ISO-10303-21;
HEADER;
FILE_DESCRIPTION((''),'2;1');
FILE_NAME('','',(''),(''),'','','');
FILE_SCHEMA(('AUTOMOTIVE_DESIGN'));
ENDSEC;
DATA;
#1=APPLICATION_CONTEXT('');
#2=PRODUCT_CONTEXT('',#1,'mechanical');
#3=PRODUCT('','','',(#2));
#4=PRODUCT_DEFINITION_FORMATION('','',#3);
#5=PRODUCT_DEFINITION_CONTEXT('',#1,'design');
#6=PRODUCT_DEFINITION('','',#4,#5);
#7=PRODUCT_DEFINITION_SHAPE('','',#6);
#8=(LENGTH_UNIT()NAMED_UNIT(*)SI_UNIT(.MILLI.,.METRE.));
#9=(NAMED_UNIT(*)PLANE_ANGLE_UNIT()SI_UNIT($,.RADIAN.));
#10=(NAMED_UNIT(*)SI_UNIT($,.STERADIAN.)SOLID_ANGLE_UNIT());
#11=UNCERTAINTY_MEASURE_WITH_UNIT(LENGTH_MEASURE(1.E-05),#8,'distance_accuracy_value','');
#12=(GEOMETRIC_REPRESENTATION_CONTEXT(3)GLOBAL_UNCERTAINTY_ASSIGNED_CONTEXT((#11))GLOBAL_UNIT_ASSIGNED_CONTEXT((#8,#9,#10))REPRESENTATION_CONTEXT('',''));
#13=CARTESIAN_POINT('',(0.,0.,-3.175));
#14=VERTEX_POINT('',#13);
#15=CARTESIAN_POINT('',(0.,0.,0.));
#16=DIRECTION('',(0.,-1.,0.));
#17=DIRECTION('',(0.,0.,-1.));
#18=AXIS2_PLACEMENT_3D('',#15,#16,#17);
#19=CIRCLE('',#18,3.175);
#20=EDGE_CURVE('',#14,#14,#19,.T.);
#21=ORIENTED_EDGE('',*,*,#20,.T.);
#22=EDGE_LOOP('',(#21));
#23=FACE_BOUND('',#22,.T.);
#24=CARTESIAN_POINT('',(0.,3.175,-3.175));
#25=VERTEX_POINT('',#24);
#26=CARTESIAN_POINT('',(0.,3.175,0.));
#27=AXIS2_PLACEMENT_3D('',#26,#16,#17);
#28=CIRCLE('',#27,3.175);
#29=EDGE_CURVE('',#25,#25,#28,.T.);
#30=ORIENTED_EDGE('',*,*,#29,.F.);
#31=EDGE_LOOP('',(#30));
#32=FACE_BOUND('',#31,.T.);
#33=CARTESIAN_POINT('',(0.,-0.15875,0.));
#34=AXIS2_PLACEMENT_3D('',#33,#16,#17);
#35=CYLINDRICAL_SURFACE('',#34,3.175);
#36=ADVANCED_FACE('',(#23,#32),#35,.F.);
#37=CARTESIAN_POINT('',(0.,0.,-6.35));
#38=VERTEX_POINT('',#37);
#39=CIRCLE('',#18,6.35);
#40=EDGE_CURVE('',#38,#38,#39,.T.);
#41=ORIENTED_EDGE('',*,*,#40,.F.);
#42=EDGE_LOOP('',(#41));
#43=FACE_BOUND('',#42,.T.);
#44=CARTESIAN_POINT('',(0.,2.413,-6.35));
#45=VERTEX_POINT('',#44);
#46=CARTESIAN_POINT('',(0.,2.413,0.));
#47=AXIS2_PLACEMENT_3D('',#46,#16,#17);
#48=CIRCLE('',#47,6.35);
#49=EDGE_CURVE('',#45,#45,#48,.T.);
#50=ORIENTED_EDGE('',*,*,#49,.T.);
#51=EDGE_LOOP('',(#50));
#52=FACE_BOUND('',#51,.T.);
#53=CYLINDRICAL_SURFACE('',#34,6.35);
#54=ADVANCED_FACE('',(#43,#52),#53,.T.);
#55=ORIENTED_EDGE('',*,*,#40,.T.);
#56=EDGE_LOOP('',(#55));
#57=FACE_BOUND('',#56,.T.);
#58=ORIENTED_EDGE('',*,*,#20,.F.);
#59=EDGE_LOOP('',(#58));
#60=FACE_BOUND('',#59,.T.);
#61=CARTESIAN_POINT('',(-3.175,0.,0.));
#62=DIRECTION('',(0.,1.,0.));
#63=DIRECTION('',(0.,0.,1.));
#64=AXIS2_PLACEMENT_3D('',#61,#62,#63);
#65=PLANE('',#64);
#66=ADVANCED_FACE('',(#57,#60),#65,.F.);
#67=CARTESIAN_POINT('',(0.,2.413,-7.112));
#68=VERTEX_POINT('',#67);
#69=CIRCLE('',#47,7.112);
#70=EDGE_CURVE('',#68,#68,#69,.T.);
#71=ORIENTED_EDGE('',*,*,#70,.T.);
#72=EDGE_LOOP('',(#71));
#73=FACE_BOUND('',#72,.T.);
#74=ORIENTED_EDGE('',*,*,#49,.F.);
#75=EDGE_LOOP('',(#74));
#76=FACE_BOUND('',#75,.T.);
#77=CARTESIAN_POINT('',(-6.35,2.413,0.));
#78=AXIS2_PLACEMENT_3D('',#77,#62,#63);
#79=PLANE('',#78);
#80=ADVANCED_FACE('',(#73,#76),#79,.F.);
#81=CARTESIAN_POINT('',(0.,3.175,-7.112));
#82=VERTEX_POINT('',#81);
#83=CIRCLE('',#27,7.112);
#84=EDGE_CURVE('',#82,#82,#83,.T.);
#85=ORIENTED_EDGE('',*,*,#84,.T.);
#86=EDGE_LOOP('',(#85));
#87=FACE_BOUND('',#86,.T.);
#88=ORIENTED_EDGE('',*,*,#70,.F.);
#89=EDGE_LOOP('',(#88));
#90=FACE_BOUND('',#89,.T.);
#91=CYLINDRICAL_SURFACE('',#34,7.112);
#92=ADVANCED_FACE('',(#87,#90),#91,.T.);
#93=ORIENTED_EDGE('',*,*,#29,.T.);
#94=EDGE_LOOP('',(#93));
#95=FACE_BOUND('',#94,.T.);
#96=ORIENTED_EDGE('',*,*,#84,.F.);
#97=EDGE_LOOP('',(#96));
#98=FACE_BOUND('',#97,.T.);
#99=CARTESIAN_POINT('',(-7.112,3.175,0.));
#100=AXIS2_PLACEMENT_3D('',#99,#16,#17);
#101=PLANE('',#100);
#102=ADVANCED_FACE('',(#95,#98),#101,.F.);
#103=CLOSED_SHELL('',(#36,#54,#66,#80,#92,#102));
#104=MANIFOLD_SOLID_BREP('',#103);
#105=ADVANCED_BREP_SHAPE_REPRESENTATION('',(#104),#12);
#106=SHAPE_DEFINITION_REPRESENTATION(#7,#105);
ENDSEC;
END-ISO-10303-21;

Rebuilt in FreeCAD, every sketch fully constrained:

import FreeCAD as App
import Part
import Sketcher
Q = App.Units.Quantity


def add_polygon(sketch, points):
    """Adds a closed chain of lines whose ends are joined by coincident constraints."""
    first, n = sketch.GeometryCount, len(points)
    for a, b in zip(points, points[1:] + points[:1]):
        sketch.addGeometry(Part.LineSegment(App.Vector(*a, 0), App.Vector(*b, 0)), False)
    for i in range(n):
        sketch.addConstraint(Sketcher.Constraint("Coincident", first + i, 2, first + (i + 1) % n, 1))

doc = App.newDocument("Part")
params = doc.addObject("Spreadsheet::Sheet", "Params")
for row, (alias, value) in enumerate([
    ("sketch1_width", "0.03 in"),
    ("sketch1_width2", "0.125 in"),
    ("revolution_angle", "360 deg"),
], start=1):
    params.set(f"A{row}", alias)
    params.set(f"B{row}", "=" + value)
    params.setAlias(f"B{row}", alias)

body = doc.addObject("PartDesign::Body", "Body")

# Sketch on XY plane
sketch1 = doc.addObject("Sketcher::SketchObject", "Sketch")
body.addObject(sketch1)
sketch1.AttachmentSupport = (doc.XY_Plane, [""])
sketch1.MapMode = "FlatFace"
add_polygon(sketch1, [(-6.35, 0), (-3.175, 0), (-3.175, 3.175), (-7.112, 3.175), (-7.112, 2.413), (-6.35, 2.413)])  # lines 0-5
sketch1.addConstraint(Sketcher.Constraint("Horizontal", 0))
sketch1.addConstraint(Sketcher.Constraint("Vertical", 1))
sketch1.addConstraint(Sketcher.Constraint("Horizontal", 2))
sketch1.addConstraint(Sketcher.Constraint("Vertical", 3))
sketch1.addConstraint(Sketcher.Constraint("Horizontal", 4))
sketch1.addConstraint(Sketcher.Constraint("Vertical", 5))
sketch1.addConstraint(Sketcher.Constraint("PointOnObject", 0, 2, -1))
sketch1.addConstraint(Sketcher.Constraint("Equal", 0, 1))
sketch1.addConstraint(Sketcher.Constraint("Equal", 4, 3))
sketch1.addConstraint(Sketcher.Constraint("DistanceX", 4, 1, 4, 2, Q("0.03 in")))
sketch1.addConstraint(Sketcher.Constraint("DistanceX", 0, 1, 0, 2, Q("0.125 in")))
sketch1.addConstraint(Sketcher.Constraint("DistanceX", 2, 2, -1, 1, Q("0.28 in")))
sketch1.setExpression("Constraints[15]", "Params.sketch1_width")
sketch1.setExpression("Constraints[16]", "Params.sketch1_width2")
revolution = doc.addObject("PartDesign::Revolution", "Revolution")
body.addObject(revolution)
revolution.Profile = sketch1
revolution.ReferenceAxis = (sketch1, ["V_Axis"])
revolution.setExpression("Angle", "Params.revolution_angle")

doc.recompute()
